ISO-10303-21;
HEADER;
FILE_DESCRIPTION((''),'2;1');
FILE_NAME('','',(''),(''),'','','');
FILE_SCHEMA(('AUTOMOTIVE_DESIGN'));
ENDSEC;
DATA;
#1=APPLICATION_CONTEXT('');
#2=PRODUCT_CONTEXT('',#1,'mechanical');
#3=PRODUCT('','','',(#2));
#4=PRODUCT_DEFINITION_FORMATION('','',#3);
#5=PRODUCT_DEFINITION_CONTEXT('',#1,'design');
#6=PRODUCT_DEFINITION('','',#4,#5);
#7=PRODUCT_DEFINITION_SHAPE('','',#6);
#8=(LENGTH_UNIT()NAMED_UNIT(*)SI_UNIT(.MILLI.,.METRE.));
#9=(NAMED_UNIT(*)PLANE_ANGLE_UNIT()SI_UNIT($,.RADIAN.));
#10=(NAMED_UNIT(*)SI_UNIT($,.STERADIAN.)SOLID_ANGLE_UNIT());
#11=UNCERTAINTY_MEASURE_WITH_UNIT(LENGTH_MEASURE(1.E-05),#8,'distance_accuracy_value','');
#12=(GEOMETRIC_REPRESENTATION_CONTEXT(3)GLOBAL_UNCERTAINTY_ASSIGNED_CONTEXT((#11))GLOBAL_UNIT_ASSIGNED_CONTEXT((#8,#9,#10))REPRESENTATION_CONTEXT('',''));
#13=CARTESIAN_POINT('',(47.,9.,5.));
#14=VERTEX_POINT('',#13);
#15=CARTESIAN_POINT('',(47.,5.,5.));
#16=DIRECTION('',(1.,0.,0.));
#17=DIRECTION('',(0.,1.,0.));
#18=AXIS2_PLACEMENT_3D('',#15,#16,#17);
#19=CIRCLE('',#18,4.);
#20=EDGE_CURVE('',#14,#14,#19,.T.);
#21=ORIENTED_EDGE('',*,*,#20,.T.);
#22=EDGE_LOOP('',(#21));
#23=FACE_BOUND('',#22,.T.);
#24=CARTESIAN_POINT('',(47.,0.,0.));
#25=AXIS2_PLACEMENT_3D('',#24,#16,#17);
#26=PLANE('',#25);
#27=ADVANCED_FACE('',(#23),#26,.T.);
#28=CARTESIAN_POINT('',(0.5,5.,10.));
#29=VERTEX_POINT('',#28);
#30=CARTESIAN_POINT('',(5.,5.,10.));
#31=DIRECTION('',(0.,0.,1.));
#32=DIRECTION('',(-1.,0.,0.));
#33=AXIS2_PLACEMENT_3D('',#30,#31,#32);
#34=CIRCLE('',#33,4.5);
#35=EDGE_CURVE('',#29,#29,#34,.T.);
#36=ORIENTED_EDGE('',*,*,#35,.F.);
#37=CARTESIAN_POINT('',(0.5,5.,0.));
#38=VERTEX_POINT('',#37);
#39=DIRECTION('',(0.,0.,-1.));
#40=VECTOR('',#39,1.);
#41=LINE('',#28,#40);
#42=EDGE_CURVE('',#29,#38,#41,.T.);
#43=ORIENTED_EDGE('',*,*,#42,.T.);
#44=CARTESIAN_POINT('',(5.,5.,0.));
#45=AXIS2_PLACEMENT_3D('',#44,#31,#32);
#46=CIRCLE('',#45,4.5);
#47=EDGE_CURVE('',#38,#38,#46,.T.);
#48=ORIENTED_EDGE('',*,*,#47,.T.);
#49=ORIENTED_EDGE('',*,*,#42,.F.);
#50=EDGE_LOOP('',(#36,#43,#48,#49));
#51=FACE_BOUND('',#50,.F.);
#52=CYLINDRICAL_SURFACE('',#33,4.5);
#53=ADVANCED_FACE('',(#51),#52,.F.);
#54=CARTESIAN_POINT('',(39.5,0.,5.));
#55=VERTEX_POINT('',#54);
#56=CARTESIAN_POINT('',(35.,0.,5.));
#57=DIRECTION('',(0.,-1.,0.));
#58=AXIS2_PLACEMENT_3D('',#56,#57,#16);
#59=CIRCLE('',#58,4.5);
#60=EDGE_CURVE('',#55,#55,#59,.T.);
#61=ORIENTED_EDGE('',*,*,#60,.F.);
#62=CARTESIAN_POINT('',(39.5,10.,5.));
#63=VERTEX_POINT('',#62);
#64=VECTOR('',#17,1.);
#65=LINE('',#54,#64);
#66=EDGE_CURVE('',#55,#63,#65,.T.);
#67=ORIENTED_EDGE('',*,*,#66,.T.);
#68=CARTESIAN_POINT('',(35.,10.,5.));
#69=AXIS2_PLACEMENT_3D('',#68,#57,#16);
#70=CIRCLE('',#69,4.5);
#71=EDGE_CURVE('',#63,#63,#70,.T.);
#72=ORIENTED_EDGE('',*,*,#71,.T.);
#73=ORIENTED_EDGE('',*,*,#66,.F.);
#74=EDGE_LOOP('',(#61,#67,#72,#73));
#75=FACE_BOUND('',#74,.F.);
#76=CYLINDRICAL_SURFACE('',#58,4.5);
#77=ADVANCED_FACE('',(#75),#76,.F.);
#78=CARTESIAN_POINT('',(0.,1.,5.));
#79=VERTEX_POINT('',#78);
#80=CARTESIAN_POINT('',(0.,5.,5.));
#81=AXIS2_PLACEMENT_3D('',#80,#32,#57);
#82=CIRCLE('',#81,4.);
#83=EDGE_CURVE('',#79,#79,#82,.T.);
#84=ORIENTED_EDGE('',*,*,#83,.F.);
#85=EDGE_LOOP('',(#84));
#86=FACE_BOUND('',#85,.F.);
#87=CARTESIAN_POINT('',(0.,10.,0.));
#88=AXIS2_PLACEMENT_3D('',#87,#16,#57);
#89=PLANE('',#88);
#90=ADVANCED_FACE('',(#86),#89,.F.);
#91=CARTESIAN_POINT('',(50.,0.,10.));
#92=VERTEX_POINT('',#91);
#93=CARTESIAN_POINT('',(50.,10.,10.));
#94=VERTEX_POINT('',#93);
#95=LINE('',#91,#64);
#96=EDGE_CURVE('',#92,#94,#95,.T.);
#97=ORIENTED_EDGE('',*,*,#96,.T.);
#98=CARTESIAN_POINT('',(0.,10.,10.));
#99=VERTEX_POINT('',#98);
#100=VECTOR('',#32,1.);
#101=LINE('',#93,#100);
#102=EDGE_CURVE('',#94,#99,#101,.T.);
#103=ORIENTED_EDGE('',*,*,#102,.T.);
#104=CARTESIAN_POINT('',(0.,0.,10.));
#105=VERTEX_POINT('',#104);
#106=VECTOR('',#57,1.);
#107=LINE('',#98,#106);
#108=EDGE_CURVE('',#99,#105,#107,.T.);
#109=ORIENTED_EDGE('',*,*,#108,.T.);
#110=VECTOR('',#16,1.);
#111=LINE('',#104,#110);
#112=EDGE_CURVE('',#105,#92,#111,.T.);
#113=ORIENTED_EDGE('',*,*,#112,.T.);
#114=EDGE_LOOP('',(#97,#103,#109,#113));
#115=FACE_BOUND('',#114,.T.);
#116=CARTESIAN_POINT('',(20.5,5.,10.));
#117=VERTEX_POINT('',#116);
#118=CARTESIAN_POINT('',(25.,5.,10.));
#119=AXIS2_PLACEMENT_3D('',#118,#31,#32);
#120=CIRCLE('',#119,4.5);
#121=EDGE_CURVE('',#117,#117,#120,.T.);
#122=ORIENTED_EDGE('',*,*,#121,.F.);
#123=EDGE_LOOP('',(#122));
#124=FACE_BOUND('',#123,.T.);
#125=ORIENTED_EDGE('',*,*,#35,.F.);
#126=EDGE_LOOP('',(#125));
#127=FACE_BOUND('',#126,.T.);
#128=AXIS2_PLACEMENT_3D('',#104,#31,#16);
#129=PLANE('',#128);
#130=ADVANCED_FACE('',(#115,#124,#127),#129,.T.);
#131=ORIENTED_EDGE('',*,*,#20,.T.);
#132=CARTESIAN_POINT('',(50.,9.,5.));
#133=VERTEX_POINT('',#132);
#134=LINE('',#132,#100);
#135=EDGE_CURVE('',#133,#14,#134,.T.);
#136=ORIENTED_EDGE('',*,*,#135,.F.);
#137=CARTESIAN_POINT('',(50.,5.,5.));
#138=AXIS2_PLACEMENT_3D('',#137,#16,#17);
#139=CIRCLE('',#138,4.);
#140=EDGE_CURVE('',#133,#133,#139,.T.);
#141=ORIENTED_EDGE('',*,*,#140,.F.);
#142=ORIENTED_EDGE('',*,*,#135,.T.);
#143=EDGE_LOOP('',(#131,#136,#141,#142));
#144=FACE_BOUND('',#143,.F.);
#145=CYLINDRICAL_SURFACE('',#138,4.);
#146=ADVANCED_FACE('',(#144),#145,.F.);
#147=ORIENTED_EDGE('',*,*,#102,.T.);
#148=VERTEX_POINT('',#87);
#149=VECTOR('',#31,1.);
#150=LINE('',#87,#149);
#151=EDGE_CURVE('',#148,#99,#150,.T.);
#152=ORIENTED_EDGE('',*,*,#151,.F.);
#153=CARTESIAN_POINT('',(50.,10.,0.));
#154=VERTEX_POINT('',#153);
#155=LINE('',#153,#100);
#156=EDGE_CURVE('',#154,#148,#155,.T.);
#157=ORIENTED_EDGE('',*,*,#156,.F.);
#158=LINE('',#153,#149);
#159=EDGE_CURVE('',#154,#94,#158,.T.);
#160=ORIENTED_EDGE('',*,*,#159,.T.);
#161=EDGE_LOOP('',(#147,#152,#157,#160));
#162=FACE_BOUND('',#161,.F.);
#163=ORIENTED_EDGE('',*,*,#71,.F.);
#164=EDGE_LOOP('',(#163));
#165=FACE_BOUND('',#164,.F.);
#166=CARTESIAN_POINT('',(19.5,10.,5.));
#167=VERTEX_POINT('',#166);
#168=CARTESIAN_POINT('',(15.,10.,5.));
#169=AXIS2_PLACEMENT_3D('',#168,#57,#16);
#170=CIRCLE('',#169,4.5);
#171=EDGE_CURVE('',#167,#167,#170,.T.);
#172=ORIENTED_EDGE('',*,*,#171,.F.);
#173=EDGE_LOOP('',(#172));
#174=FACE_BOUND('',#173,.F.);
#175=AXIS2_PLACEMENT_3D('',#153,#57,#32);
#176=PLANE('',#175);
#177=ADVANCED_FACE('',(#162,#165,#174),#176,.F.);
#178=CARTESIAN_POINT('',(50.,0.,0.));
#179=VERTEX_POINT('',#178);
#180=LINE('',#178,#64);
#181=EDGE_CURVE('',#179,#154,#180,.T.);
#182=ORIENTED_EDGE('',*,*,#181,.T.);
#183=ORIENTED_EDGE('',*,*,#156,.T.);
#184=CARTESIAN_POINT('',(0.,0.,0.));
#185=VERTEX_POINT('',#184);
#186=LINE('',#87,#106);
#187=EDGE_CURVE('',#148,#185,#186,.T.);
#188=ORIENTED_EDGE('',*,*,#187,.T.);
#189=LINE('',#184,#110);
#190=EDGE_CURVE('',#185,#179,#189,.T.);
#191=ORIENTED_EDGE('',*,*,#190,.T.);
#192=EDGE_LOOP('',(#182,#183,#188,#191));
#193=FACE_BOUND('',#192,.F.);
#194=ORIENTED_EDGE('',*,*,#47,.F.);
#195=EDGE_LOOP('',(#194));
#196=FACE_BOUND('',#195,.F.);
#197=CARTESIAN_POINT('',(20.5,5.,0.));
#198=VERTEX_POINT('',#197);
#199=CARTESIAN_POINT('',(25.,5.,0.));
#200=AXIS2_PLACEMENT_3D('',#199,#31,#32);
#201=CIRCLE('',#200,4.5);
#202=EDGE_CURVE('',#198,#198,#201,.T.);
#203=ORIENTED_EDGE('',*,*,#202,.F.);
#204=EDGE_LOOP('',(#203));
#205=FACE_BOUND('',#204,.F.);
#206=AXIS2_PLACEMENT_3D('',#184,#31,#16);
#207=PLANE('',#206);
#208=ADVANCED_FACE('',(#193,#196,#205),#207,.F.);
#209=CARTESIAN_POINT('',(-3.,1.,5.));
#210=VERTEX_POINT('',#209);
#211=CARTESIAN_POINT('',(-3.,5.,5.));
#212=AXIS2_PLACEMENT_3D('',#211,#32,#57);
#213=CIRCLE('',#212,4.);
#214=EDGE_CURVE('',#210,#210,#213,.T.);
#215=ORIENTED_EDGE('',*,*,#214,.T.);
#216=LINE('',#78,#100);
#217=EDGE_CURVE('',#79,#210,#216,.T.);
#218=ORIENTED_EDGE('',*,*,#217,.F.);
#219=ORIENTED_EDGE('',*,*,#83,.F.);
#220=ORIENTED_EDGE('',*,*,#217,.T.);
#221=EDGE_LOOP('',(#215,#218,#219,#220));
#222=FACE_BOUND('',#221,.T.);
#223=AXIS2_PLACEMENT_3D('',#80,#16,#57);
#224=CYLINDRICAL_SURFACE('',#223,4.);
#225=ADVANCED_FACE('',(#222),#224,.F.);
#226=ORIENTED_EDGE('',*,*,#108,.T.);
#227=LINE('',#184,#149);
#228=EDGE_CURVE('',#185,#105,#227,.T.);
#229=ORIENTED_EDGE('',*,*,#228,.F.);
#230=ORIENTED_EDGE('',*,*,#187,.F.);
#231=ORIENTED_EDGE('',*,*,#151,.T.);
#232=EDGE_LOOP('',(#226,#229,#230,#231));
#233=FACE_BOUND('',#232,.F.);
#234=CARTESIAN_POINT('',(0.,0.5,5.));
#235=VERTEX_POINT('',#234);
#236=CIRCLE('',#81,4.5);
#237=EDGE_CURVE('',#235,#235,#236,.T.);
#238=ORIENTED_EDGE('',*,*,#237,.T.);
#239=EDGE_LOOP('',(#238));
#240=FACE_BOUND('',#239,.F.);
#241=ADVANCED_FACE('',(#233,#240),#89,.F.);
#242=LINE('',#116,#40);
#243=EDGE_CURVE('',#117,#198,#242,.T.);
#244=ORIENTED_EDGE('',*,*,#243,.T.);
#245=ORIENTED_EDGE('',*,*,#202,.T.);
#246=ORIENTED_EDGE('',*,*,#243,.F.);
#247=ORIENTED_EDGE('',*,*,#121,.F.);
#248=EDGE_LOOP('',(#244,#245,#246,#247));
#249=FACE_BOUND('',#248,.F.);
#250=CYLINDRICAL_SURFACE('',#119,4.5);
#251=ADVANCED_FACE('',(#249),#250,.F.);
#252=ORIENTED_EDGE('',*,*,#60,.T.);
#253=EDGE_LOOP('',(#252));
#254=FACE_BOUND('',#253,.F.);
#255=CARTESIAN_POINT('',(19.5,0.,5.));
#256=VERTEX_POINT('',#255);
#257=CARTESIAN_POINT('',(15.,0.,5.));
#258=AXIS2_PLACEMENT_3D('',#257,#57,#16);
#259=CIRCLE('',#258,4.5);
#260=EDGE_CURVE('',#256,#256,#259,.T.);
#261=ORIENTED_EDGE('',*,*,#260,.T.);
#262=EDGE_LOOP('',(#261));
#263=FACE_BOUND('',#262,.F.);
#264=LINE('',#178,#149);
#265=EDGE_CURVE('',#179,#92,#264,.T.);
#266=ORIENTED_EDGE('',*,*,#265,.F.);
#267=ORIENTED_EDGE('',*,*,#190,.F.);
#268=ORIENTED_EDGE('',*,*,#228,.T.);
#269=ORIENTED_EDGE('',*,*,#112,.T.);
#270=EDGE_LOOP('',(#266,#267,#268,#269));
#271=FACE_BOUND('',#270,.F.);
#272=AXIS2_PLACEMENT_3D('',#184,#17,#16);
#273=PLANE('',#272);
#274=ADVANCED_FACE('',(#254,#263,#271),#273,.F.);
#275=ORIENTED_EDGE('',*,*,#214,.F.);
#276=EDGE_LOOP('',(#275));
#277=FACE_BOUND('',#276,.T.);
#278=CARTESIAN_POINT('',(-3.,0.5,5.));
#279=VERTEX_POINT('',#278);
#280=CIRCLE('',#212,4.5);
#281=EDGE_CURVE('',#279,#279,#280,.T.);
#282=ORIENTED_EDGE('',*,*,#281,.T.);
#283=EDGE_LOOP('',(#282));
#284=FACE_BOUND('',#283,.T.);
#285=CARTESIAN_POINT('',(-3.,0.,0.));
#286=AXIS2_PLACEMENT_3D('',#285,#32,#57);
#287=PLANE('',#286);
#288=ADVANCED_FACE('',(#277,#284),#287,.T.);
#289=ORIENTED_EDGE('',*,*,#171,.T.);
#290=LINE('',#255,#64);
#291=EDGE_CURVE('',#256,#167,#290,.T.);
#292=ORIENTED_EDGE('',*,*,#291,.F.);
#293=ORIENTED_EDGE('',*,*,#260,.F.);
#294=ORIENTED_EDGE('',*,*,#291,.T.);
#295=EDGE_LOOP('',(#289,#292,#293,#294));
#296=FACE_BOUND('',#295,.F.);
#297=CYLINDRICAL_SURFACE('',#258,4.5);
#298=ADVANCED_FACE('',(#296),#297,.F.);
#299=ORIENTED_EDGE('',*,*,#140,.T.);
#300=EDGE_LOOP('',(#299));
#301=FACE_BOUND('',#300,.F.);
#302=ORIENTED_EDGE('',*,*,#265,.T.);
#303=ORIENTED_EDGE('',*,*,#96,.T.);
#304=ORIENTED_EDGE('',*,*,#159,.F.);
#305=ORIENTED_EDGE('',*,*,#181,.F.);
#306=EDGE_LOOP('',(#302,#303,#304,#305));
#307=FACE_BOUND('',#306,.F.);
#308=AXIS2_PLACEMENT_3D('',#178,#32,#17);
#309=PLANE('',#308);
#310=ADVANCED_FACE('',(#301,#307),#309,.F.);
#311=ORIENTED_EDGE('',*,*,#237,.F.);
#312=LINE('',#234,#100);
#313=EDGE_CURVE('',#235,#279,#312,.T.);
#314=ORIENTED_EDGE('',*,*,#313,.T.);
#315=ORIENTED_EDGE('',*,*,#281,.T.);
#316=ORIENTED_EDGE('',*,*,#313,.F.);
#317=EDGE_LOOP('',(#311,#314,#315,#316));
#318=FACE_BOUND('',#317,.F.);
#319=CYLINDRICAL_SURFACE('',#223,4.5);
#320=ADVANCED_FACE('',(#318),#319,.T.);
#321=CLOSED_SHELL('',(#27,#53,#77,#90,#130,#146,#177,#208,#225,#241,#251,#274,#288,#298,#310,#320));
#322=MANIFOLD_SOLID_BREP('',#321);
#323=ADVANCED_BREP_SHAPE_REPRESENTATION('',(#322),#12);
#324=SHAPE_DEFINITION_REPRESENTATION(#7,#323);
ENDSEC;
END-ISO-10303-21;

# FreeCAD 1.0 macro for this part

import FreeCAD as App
import Part
import Sketcher
from FreeCAD import Vector


def add_polygon(sketch, points):
    """Adds a closed chain of lines whose ends are joined by coincident constraints."""
    first, n = sketch.GeometryCount, len(points)
    for a, b in zip(points, points[1:] + points[:1]):
        sketch.addGeometry(Part.LineSegment(App.Vector(*a, 0), App.Vector(*b, 0)), False)
    for i in range(n):
        sketch.addConstraint(Sketcher.Constraint("Coincident", first + i, 2, first + (i + 1) % n, 1))

doc = App.newDocument("Part")
body = doc.addObject("PartDesign::Body", "Body")

# Sketch on XY plane
sketch1 = body.newObject("Sketcher::SketchObject", "Sketch")
sketch1.AttachmentSupport = (doc.getObject("XY_Plane"), [""])
sketch1.MapMode = "FlatFace"
add_polygon(sketch1, [(0, 10), (0, 0), (50, 0), (50, 10)])  # lines 0-3
sketch1.addConstraint([
    Sketcher.Constraint("Vertical", 0),
    Sketcher.Constraint("Horizontal", 1),
    Sketcher.Constraint("Vertical", 2),
    Sketcher.Constraint("Horizontal", 3),
    Sketcher.Constraint("Coincident", 0, 2, -1, 1),
    Sketcher.Constraint("DistanceX", 1, 1, 1, 2, 50.0),
    Sketcher.Constraint("DistanceY", 0, 2, 0, 1, 10.0),
])
pad1 = body.newObject("PartDesign::Pad", "Pad")
pad1.Profile = sketch1
pad1.Length = 10

# Sketch on XY plane
sketch2 = body.newObject("Sketcher::SketchObject", "Sketch001")
sketch2.AttachmentSupport = (doc.getObject("XY_Plane"), [""])
sketch2.MapMode = "FlatFace"
sketch2.AttachmentOffset = App.Placement(Vector(0, 0, 10), App.Rotation())
sketch2.addGeometry([
    Part.Circle(Vector(5, 5, 0), Vector(0, 0, 1), 4.5),
    Part.Circle(Vector(25, 5, 0), Vector(0, 0, 1), 4.5),
], False)
sketch2.addConstraint([
    Sketcher.Constraint("Equal", 0, 1),
    Sketcher.Constraint("Horizontal", 0, 3, 1, 3),
    Sketcher.Constraint("Diameter", 0, 9.0),
    Sketcher.Constraint("DistanceX", -1, 1, 0, 3, 5.0),
    Sketcher.Constraint("DistanceY", -1, 1, 0, 3, 5.0),
    Sketcher.Constraint("DistanceX", -1, 1, 1, 3, 25.0),
])
pocket1 = body.newObject("PartDesign::Pocket", "Pocket")
pocket1.Profile = sketch2
pocket1.Length = 11

# Sketch on YZ plane
sketch3 = body.newObject("Sketcher::SketchObject", "Sketch002")
sketch3.AttachmentSupport = (doc.getObject("YZ_Plane"), [""])
sketch3.MapMode = "FlatFace"
sketch3.AttachmentOffset = App.Placement(Vector(0, 0, 50), App.Rotation())
sketch3.addGeometry(Part.Circle(Vector(5, 5, 0), Vector(0, 0, 1), 4), False)
sketch3.addConstraint([
    Sketcher.Constraint("Diameter", 0, 8.0),
    Sketcher.Constraint("DistanceX", -1, 1, 0, 3, 5.0),
    Sketcher.Constraint("DistanceY", -1, 1, 0, 3, 5.0),
])
pocket2 = body.newObject("PartDesign::Pocket", "Pocket001")
pocket2.Profile = sketch3
pocket2.Length = 3

# Sketch on XZ plane
sketch4 = body.newObject("Sketcher::SketchObject", "Sketch003")
sketch4.AttachmentSupport = (doc.getObject("XZ_Plane"), [""])
sketch4.MapMode = "FlatFace"
sketch4.addGeometry([
    Part.Circle(Vector(15, 5, 0), Vector(0, 0, 1), 4.5),
    Part.Circle(Vector(35, 5, 0), Vector(0, 0, 1), 4.5),
], False)
sketch4.addConstraint([
    Sketcher.Constraint("Equal", 0, 1),
    Sketcher.Constraint("Horizontal", 0, 3, 1, 3),
    Sketcher.Constraint("Diameter", 0, 9.0),
    Sketcher.Constraint("DistanceX", -1, 1, 0, 3, 15.0),
    Sketcher.Constraint("DistanceY", -1, 1, 0, 3, 5.0),
    Sketcher.Constraint("DistanceX", -1, 1, 1, 3, 35.0),
])
pocket3 = body.newObject("PartDesign::Pocket", "Pocket002")
pocket3.Profile = sketch4
pocket3.Length = 20

# Sketch on YZ plane
sketch5 = body.newObject("Sketcher::SketchObject", "Sketch004")
sketch5.AttachmentSupport = (doc.getObject("YZ_Plane"), [""])
sketch5.MapMode = "FlatFace"
sketch5.addGeometry([
    Part.Circle(Vector(5, 5, 0), Vector(0, 0, 1), 4.5),
    Part.Circle(Vector(5, 5, 0), Vector(0, 0, 1), 4),
], False)
sketch5.addConstraint([
    Sketcher.Constraint("Coincident", 1, 3, 0, 3),
    Sketcher.Constraint("Diameter", 0, 9.0),
    Sketcher.Constraint("Diameter", 1, 8.0),
    Sketcher.Constraint("DistanceX", -1, 1, 0, 3, 5.0),
    Sketcher.Constraint("DistanceY", -1, 1, 0, 3, 5.0),
])
pad2 = body.newObject("PartDesign::Pad", "Pad001")
pad2.Profile = sketch5
pad2.Length = 3
pad2.Reversed = True

doc.recompute()
